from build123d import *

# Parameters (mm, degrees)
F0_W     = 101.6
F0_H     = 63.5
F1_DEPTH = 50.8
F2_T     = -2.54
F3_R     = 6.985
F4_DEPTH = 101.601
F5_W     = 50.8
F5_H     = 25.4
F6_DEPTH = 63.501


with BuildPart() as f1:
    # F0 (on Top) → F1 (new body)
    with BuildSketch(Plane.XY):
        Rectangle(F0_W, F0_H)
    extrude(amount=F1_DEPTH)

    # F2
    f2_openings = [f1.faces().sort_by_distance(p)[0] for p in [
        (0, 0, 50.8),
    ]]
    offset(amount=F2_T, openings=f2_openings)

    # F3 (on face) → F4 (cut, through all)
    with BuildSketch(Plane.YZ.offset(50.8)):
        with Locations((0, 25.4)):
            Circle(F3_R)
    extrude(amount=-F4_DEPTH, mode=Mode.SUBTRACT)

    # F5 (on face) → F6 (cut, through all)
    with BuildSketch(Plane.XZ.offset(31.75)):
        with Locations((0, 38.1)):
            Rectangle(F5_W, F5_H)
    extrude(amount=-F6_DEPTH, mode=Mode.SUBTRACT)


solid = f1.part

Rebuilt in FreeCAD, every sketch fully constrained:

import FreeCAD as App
import Part
import Sketcher
Q = App.Units.Quantity


def faces_at(feature, points):
    """Names of the faces that lie closest to the given points."""
    faces = feature.Shape.Faces
    near = lambda p: min(range(len(faces)), key=lambda i: faces[i].distToShape(Part.Vertex(*p))[0])
    return sorted({f"Face{near(p) + 1}" for p in points})

doc = App.newDocument("Part")
body = doc.addObject("PartDesign::Body", "Body")

# Sketch on XY plane
sketch1 = body.newObject("Sketcher::SketchObject", "Sketch")
sketch1.AttachmentSupport = (doc.getObject("XY_Plane"), [""])
sketch1.MapMode = "FlatFace"
sketch1.addGeometry([
    Part.LineSegment(App.Vector(-50.8, 31.75, 0), App.Vector(-50.8, -31.75, 0)),
    Part.LineSegment(App.Vector(-50.8, -31.75, 0), App.Vector(50.8, -31.75, 0)),
    Part.LineSegment(App.Vector(50.8, -31.75, 0), App.Vector(50.8, 31.75, 0)),
    Part.LineSegment(App.Vector(50.8, 31.75, 0), App.Vector(-50.8, 31.75, 0)),
], False)
sketch1.addConstraint([
    Sketcher.Constraint("Coincident", 0, 2, 1, 1),
    Sketcher.Constraint("Coincident", 1, 2, 2, 1),
    Sketcher.Constraint("Coincident", 2, 2, 3, 1),
    Sketcher.Constraint("Coincident", 3, 2, 0, 1),
    Sketcher.Constraint("Vertical", 0),
    Sketcher.Constraint("Horizontal", 1),
    Sketcher.Constraint("Vertical", 2),
    Sketcher.Constraint("Horizontal", 3),
    Sketcher.Constraint("Symmetric", 0, 2, 2, 2, -1, 1),
    Sketcher.Constraint("DistanceX", 1, 1, 1, 2, Q("4 in")),
    Sketcher.Constraint("DistanceY", 0, 2, 0, 1, Q("2.5 in")),
])
pad1 = body.newObject("PartDesign::Pad", "Pad")
pad1.Profile = sketch1
pad1.Length = Q("2 in")
doc.recompute()

thickness = body.newObject("PartDesign::Thickness", "Thickness")
thickness.Base = (pad1, faces_at(pad1, [(0, 0, 50.8)]))
thickness.Value = Q("0.1 in")
thickness.Reversed = True
thickness.Join = "Arc"

# Sketch on YZ plane
sketch2 = body.newObject("Sketcher::SketchObject", "Sketch001")
sketch2.AttachmentSupport = (doc.getObject("YZ_Plane"), [""])
sketch2.MapMode = "FlatFace"
sketch2.AttachmentOffset = App.Placement(App.Vector(0, 0, 2 * 25.4), App.Rotation())
sketch2.addGeometry(Part.Circle(App.Vector(0, 25.4, 0), App.Vector(0, 0, 1), 6.985), False)
sketch2.addConstraint([
    Sketcher.Constraint("PointOnObject", 0, 3, -2),
    Sketcher.Constraint("Diameter", 0, Q("0.55 in")),
    Sketcher.Constraint("DistanceY", -1, 1, 0, 3, Q("1 in")),
])
pocket1 = body.newObject("PartDesign::Pocket", "Pocket")
pocket1.Profile = sketch2
pocket1.Type = "ThroughAll"

# Sketch on XZ plane
sketch3 = body.newObject("Sketcher::SketchObject", "Sketch002")
sketch3.AttachmentSupport = (doc.getObject("XZ_Plane"), [""])
sketch3.MapMode = "FlatFace"
sketch3.AttachmentOffset = App.Placement(App.Vector(0, 0, 1.25 * 25.4), App.Rotation())
sketch3.addGeometry([
    Part.LineSegment(App.Vector(-25.4, 50.8, 0), App.Vector(-25.4, 25.4, 0)),
    Part.LineSegment(App.Vector(-25.4, 25.4, 0), App.Vector(25.4, 25.4, 0)),
    Part.LineSegment(App.Vector(25.4, 25.4, 0), App.Vector(25.4, 50.8, 0)),
    Part.LineSegment(App.Vector(25.4, 50.8, 0), App.Vector(-25.4, 50.8, 0)),
], False)
sketch3.addConstraint([
    Sketcher.Constraint("Coincident", 0, 2, 1, 1),
    Sketcher.Constraint("Coincident", 1, 2, 2, 1),
    Sketcher.Constraint("Coincident", 2, 2, 3, 1),
    Sketcher.Constraint("Coincident", 3, 2, 0, 1),
    Sketcher.Constraint("Vertical", 0),
    Sketcher.Constraint("Horizontal", 1),
    Sketcher.Constraint("Vertical", 2),
    Sketcher.Constraint("Horizontal", 3),
    Sketcher.Constraint("DistanceX", 1, 1, 1, 2, Q("2 in")),
    Sketcher.Constraint("DistanceY", 0, 2, 0, 1, Q("1 in")),
    Sketcher.Constraint("DistanceX", 0, 2, -1, 1, Q("1 in")),
    Sketcher.Constraint("DistanceY", -1, 1, 0, 2, Q("1 in")),
])
pocket2 = body.newObject("PartDesign::Pocket", "Pocket001")
pocket2.Profile = sketch3
pocket2.Type = "ThroughAll"

doc.recompute()
